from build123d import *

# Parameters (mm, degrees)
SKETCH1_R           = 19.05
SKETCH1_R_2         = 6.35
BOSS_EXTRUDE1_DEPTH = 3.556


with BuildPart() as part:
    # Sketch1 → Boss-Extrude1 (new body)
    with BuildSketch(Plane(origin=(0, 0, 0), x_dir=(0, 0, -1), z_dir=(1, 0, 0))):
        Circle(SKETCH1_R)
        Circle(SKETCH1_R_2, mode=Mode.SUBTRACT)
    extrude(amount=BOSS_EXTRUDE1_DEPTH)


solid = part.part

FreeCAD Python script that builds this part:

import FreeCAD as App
import Part
import Sketcher
Q = App.Units.Quantity

doc = App.newDocument("Part")
body = doc.addObject("PartDesign::Body", "Body")

# Sketch on YZ plane
sketch1 = body.newObject("Sketcher::SketchObject", "Sketch")
sketch1.AttachmentSupport = (doc.getObject("YZ_Plane"), [""])
sketch1.MapMode = "FlatFace"
sketch1.addGeometry([
    Part.Circle(App.Vector(0, 0, 0), App.Vector(0, 0, 1), 19),
    Part.Circle(App.Vector(0, 0, 0), App.Vector(0, 0, 1), 6),
], False)
sketch1.addConstraint([
    Sketcher.Constraint("Coincident", 0, 3, -1, 1),
    Sketcher.Constraint("Coincident", 1, 3, -1, 1),
    Sketcher.Constraint("Diameter", 0, Q("1.5 in")),
    Sketcher.Constraint("Diameter", 1, Q("0.5 in")),
])
pad1 = body.newObject("PartDesign::Pad", "Pad")
pad1.Profile = sketch1
pad1.Length = Q("0.14 in")

doc.recompute()
